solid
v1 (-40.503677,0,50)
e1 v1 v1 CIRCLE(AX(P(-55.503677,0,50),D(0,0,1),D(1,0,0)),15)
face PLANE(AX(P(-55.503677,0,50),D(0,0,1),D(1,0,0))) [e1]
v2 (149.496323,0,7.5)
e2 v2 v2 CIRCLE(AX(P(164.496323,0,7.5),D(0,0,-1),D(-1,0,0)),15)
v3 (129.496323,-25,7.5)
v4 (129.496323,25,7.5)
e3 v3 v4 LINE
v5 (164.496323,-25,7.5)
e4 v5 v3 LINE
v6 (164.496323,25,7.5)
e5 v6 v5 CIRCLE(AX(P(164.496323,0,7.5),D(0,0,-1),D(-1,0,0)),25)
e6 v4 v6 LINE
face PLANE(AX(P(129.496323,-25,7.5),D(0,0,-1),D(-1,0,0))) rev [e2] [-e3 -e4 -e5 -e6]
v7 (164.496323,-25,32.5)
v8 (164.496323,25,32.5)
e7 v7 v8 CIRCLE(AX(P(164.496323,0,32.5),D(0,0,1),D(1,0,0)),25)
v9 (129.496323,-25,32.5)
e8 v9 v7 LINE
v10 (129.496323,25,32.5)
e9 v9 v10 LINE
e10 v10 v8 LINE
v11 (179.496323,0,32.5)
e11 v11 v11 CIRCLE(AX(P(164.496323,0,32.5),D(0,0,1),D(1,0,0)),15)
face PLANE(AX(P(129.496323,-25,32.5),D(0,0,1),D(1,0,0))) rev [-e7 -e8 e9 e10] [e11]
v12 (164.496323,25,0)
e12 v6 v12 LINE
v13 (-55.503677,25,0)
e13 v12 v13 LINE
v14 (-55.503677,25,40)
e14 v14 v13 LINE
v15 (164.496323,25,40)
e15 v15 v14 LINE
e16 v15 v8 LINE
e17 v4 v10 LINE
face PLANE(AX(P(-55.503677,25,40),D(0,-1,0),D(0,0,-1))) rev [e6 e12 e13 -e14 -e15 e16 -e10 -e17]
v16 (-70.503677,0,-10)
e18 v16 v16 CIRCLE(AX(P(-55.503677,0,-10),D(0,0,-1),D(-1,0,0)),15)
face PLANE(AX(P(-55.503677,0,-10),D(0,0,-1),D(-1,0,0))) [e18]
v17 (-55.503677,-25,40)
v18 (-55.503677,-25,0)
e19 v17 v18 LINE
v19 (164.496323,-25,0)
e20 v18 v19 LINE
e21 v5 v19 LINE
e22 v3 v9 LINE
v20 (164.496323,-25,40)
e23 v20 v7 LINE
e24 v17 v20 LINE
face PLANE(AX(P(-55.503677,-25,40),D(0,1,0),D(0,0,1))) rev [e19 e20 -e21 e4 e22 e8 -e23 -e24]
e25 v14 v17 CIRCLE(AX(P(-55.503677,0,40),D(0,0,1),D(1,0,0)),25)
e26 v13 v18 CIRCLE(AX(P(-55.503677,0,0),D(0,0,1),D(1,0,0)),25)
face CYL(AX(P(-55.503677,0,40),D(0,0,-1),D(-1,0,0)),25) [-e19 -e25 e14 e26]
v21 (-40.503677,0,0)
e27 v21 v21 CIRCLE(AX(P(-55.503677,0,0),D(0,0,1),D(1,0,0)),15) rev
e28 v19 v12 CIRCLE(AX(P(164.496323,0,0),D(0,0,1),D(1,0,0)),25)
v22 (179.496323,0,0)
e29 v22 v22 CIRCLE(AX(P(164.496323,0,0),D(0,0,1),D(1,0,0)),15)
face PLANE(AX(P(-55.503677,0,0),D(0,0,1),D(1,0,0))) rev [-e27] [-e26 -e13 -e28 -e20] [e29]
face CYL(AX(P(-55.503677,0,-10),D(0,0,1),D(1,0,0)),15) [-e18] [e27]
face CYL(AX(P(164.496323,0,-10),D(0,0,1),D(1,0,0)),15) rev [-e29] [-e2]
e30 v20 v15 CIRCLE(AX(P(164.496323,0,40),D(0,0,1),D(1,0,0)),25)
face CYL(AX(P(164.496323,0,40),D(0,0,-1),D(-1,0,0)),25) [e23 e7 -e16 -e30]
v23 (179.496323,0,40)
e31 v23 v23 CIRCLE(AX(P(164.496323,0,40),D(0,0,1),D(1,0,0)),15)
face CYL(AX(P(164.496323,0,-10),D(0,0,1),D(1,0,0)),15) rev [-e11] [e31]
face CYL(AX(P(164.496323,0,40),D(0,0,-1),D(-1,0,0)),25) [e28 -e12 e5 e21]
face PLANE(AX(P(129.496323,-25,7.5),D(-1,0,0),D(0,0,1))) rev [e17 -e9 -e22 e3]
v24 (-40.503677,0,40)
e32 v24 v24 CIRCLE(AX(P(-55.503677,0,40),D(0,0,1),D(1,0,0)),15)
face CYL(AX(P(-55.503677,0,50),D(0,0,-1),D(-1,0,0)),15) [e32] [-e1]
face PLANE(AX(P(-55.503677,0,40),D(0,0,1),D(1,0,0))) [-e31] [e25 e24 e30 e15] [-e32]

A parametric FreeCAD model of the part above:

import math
import FreeCAD as App
import Part
import Sketcher
Q = App.Units.Quantity


def add_polygon(sketch, points):
    """Adds a closed chain of lines whose ends are joined by coincident constraints."""
    first, n = sketch.GeometryCount, len(points)
    for a, b in zip(points, points[1:] + points[:1]):
        sketch.addGeometry(Part.LineSegment(App.Vector(*a, 0), App.Vector(*b, 0)), False)
    for i in range(n):
        sketch.addConstraint(Sketcher.Constraint("Coincident", first + i, 2, first + (i + 1) % n, 1))

doc = App.newDocument("Part")
body = doc.addObject("PartDesign::Body", "Body")

# Sketch on XY plane
sketch1 = doc.addObject("Sketcher::SketchObject", "Sketch")
body.addObject(sketch1)
sketch1.AttachmentSupport = (doc.XY_Plane, [""])
sketch1.MapMode = "FlatFace"
sketch1.addGeometry([
    Part.LineSegment(App.Vector(164, 25, 0), App.Vector(-56, 25, 0)),
    Part.ArcOfCircle(Part.Circle(App.Vector(-56, 0, 0), App.Vector(0, 0, 1), 25), math.radians(90), math.radians(270)),
    Part.LineSegment(App.Vector(-56, -25, 0), App.Vector(164, -25, 0)),
    Part.ArcOfCircle(Part.Circle(App.Vector(164, 0, 0), App.Vector(0, 0, 1), 25), math.radians(-90), math.radians(90)),
], False)
sketch1.addConstraint([
    Sketcher.Constraint("Tangent", 0, 2, 1, 1),
    Sketcher.Constraint("Tangent", 1, 2, 2, 1),
    Sketcher.Constraint("Tangent", 2, 2, 3, 1),
    Sketcher.Constraint("Tangent", 3, 2, 0, 1),
    Sketcher.Constraint("Horizontal", 0),
    Sketcher.Constraint("Horizontal", 2),
    Sketcher.Constraint("PointOnObject", 1, 3, -1),
    Sketcher.Constraint("Radius", 1, Q("25 mm")),
    Sketcher.Constraint("DistanceX", 0, 2, 0, 1, Q("220 mm")),
    Sketcher.Constraint("DistanceX", 1, 3, -1, 1, Q("55.503677 mm")),
])
pad1 = doc.addObject("PartDesign::Pad", "Pad")
body.addObject(pad1)
pad1.Profile = sketch1
pad1.Length = 40

# Sketch on XY plane
sketch2 = doc.addObject("Sketcher::SketchObject", "Sketch001")
body.addObject(sketch2)
sketch2.AttachmentSupport = (doc.XY_Plane, [""])
sketch2.MapMode = "FlatFace"
sketch2.AttachmentOffset = App.Placement(App.Vector(0, 0, 40), App.Rotation())
sketch2.addGeometry(Part.Circle(App.Vector(-56, 0, 0), App.Vector(0, 0, 1), 15), False)
sketch2.addConstraint([
    Sketcher.Constraint("PointOnObject", 0, 3, -1),
    Sketcher.Constraint("Diameter", 0, Q("30 mm")),
    Sketcher.Constraint("DistanceX", 0, 3, -1, 1, Q("55.503677 mm")),
])
pad2 = doc.addObject("PartDesign::Pad", "Pad001")
body.addObject(pad2)
pad2.Profile = sketch2
pad2.Length = 10

# Sketch on XY plane
sketch3 = doc.addObject("Sketcher::SketchObject", "Sketch002")
body.addObject(sketch3)
sketch3.AttachmentSupport = (doc.XY_Plane, [""])
sketch3.MapMode = "FlatFace"
sketch3.AttachmentOffset = App.Placement(App.Vector(0, 0, -10), App.Rotation())
sketch3.addGeometry(Part.Circle(App.Vector(-56, 0, 0), App.Vector(0, 0, 1), 15), False)
sketch3.addConstraint([
    Sketcher.Constraint("PointOnObject", 0, 3, -1),
    Sketcher.Constraint("Diameter", 0, Q("30 mm")),
    Sketcher.Constraint("DistanceX", 0, 3, -1, 1, Q("55.503677 mm")),
])
pad3 = doc.addObject("PartDesign::Pad", "Pad002")
body.addObject(pad3)
pad3.Profile = sketch3
pad3.Length = 10

# Sketch on XZ plane
sketch4 = doc.addObject("Sketcher::SketchObject", "Sketch003")
body.addObject(sketch4)
sketch4.AttachmentSupport = (doc.XZ_Plane, [""])
sketch4.MapMode = "FlatFace"
sketch4.AttachmentOffset = App.Placement(App.Vector(0, 0, -25), App.Rotation())
add_polygon(sketch4, [(129, 8), (129, 32), (189, 32), (189, 8)])  # lines 0-3
sketch4.addConstraint([
    Sketcher.Constraint("Vertical", 0),
    Sketcher.Constraint("Horizontal", 1),
    Sketcher.Constraint("Vertical", 2),
    Sketcher.Constraint("Horizontal", 3),
    Sketcher.Constraint("DistanceX", 1, 1, 1, 2, Q("60 mm")),
    Sketcher.Constraint("DistanceY", 0, 1, 0, 2, Q("25 mm")),
    Sketcher.Constraint("DistanceY", -1, 1, 0, 2, Q("32.5 mm")),
    Sketcher.Constraint("DistanceX", -1, 1, 0, 2, Q("129.496323 mm")),
])
pocket1 = doc.addObject("PartDesign::Pocket", "Pocket")
body.addObject(pocket1)
pocket1.Profile = sketch4
pocket1.Type = "ThroughAll"
pocket1.Reversed = True

# Sketch on XY plane
sketch5 = doc.addObject("Sketcher::SketchObject", "Sketch004")
body.addObject(sketch5)
sketch5.AttachmentSupport = (doc.XY_Plane, [""])
sketch5.MapMode = "FlatFace"
sketch5.AttachmentOffset = App.Placement(App.Vector(0, 0, 40), App.Rotation())
sketch5.addGeometry(Part.Circle(App.Vector(164, 0, 0), App.Vector(0, 0, 1), 15), False)
sketch5.addConstraint([
    Sketcher.Constraint("PointOnObject", 0, 3, -1),
    Sketcher.Constraint("Diameter", 0, Q("30 mm")),
    Sketcher.Constraint("DistanceX", -1, 1, 0, 3, Q("164.496323 mm")),
])
pocket2 = doc.addObject("PartDesign::Pocket", "Pocket001")
body.addObject(pocket2)
pocket2.Profile = sketch5
pocket2.Type = "ThroughAll"

doc.recompute()
